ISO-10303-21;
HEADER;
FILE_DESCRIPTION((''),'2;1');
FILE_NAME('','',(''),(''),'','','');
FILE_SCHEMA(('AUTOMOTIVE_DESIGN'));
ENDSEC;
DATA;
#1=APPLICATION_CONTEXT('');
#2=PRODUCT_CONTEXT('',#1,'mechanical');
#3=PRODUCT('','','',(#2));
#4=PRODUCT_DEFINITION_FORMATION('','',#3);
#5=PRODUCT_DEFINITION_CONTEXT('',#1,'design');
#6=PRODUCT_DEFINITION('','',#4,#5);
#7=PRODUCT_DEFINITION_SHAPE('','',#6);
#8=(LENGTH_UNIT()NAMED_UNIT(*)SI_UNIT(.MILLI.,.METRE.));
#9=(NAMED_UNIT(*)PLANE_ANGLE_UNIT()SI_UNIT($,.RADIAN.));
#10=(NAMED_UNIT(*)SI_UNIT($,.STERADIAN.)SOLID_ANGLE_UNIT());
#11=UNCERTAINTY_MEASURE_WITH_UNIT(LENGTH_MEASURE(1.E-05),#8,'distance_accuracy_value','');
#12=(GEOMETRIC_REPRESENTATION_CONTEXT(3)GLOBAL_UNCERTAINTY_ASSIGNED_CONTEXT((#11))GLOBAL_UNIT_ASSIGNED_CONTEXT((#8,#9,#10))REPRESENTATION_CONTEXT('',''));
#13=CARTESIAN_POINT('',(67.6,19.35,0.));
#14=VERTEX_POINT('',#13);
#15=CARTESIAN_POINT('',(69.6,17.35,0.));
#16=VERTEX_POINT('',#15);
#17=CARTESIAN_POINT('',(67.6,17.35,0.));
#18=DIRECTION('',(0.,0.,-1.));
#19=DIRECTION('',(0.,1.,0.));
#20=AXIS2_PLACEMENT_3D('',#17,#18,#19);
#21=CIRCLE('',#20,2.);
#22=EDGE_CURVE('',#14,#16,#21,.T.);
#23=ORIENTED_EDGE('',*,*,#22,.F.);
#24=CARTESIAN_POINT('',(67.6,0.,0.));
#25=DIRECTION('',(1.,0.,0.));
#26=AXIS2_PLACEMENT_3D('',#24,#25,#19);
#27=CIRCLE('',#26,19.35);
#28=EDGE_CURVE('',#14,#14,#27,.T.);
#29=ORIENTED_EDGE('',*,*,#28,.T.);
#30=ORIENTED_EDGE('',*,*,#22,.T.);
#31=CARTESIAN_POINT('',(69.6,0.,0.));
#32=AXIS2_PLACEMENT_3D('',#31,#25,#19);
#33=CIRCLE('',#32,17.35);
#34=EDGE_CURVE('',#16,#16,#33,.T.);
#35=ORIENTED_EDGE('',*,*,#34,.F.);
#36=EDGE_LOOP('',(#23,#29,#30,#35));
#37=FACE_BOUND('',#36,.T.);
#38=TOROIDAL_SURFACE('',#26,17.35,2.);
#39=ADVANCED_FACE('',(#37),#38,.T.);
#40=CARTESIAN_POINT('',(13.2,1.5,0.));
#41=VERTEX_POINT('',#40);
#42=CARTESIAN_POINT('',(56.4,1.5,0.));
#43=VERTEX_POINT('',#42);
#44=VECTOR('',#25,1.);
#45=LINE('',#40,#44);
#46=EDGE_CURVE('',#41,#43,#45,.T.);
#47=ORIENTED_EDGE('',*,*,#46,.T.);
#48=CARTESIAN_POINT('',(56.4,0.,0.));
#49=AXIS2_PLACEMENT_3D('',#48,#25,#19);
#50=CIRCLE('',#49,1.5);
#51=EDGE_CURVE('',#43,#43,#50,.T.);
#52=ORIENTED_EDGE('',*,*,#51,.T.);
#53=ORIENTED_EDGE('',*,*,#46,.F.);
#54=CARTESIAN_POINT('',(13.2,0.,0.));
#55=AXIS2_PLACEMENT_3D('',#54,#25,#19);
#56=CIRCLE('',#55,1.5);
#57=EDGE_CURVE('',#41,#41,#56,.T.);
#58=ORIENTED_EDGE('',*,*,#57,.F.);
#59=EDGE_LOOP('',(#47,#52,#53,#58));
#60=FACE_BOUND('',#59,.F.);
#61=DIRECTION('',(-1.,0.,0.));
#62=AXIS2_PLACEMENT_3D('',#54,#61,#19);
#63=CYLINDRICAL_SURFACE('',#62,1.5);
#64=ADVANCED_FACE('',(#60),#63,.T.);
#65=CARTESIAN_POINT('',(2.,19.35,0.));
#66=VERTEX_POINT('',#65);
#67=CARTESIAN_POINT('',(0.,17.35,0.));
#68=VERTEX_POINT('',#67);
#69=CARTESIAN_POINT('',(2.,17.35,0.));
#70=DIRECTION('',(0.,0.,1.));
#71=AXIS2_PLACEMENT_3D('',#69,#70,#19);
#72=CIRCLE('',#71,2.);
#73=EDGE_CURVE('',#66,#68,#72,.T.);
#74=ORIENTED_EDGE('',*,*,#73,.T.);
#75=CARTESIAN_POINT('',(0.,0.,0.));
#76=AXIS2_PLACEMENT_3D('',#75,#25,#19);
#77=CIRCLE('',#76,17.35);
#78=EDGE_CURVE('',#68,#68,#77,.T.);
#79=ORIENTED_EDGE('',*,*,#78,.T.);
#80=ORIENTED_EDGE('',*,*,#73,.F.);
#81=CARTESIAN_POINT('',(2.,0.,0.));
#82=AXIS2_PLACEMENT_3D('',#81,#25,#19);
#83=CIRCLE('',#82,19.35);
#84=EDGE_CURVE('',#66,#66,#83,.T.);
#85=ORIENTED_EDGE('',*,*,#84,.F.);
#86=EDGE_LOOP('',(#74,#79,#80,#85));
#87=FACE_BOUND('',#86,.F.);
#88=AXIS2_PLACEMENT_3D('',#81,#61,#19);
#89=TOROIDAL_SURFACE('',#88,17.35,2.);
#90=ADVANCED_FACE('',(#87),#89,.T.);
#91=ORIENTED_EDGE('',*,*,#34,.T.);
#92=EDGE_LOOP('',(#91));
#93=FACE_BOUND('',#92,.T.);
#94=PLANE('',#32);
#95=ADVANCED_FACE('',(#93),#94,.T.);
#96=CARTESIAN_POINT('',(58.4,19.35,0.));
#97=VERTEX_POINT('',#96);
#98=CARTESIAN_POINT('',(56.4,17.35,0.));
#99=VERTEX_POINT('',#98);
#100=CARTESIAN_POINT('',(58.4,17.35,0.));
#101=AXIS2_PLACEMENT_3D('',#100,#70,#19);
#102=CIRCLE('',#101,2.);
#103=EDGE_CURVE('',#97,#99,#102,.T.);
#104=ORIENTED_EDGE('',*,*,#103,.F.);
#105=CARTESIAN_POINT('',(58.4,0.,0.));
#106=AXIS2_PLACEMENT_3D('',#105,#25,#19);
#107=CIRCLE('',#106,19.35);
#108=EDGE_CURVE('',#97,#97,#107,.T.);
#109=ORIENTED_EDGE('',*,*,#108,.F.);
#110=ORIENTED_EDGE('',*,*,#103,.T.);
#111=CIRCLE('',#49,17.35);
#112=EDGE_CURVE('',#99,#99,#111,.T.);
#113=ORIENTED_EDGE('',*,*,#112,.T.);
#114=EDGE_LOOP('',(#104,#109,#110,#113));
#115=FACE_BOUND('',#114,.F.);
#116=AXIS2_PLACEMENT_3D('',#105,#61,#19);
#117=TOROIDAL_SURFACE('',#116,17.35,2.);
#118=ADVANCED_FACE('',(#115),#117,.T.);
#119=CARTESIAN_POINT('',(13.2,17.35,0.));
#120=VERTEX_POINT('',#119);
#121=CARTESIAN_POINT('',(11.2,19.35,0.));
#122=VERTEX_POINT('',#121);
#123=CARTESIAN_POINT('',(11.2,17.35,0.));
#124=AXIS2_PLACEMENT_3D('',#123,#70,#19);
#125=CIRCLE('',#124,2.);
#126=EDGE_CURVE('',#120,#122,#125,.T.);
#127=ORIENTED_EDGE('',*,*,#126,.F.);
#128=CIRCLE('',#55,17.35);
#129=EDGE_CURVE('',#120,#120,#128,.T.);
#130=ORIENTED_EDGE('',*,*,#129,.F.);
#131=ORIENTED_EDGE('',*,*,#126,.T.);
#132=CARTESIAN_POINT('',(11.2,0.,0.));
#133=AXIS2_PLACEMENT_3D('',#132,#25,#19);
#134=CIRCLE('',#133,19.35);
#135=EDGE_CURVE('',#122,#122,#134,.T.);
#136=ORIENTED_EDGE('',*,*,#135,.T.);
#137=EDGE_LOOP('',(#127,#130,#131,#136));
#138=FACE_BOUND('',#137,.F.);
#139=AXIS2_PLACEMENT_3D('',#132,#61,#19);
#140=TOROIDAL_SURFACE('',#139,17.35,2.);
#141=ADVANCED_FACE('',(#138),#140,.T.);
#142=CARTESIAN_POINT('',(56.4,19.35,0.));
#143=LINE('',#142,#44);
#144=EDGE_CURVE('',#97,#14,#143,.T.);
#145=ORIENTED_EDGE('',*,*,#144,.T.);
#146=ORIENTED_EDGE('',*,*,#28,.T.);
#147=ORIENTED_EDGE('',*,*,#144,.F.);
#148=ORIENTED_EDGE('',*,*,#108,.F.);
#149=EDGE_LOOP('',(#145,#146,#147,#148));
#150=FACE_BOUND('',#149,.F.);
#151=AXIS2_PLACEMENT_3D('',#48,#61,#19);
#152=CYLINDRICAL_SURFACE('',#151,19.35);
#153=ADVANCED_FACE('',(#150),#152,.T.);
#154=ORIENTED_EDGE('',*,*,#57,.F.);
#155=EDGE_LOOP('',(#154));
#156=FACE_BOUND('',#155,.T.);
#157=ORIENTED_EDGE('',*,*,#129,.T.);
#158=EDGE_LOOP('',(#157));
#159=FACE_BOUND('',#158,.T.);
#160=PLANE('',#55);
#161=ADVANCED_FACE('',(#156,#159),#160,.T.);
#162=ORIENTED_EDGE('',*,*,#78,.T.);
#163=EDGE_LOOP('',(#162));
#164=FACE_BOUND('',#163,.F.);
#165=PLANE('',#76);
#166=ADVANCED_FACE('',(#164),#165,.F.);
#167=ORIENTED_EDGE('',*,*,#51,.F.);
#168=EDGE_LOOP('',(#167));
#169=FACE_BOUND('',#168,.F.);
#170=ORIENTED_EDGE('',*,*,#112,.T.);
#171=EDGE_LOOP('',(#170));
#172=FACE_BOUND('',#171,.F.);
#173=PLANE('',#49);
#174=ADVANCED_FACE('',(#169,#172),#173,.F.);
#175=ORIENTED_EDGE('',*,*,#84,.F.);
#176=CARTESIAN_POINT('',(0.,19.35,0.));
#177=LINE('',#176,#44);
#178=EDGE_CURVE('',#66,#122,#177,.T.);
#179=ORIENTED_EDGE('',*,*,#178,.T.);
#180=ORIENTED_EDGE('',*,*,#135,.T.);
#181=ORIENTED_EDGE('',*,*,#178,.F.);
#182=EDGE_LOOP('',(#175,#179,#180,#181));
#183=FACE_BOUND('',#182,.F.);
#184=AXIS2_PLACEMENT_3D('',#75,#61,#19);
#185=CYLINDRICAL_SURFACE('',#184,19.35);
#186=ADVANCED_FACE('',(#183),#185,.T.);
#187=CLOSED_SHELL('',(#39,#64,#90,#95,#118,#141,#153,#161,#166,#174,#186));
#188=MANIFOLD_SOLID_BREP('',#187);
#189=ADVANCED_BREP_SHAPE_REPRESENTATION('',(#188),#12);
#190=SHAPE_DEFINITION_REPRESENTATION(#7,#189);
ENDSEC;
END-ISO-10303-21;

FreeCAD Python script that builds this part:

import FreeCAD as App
import Part
import Sketcher
from FreeCAD import Vector
Q = App.Units.Quantity


def edges_at(feature, points):
    """Names of the edges that pass closest to the given points."""
    edges = feature.Shape.Edges
    near = lambda p: min(range(len(edges)), key=lambda i: edges[i].distToShape(Part.Vertex(*p))[0])
    return sorted({f"Edge{near(p) + 1}" for p in points})

doc = App.newDocument("Part")
body = doc.addObject("PartDesign::Body", "Body")

sketch1 = body.newObject("Sketcher::SketchObject", "Sketch")
sketch1.AttachmentSupport = (doc.getObject("YZ_Plane"), [""])
sketch1.MapMode = "FlatFace"
sketch1.addGeometry(Part.Circle(Vector(0, 0, 0), Vector(0, 0, 1), 19), False)
sketch1.addConstraint(Sketcher.Constraint("Coincident", 0, 3, -1, 1))
sketch1.addConstraint(Sketcher.Constraint("Diameter", 0, Q("38.7 mm")))
pad1 = body.newObject("PartDesign::Pad", "Pad")
pad1.Profile = sketch1
pad1.Length = 13.2

sketch2 = body.newObject("Sketcher::SketchObject", "Sketch001")
sketch2.AttachmentSupport = (doc.getObject("YZ_Plane"), [""])
sketch2.MapMode = "FlatFace"
sketch2.AttachmentOffset = App.Placement(Vector(0, 0, 13.2), App.Rotation())
sketch2.addGeometry(Part.Circle(Vector(0, 0, 0), Vector(0, 0, 1), 1.5), False)
sketch2.addConstraint(Sketcher.Constraint("Coincident", 0, 3, -1, 1))
sketch2.addConstraint(Sketcher.Constraint("Diameter", 0, Q("3 mm")))
pad2 = body.newObject("PartDesign::Pad", "Pad001")
pad2.Profile = sketch2
pad2.Length = 43.2

sketch3 = body.newObject("Sketcher::SketchObject", "Sketch002")
sketch3.AttachmentSupport = (doc.getObject("YZ_Plane"), [""])
sketch3.MapMode = "FlatFace"
sketch3.AttachmentOffset = App.Placement(Vector(0, 0, 56.4), App.Rotation())
sketch3.addGeometry(Part.Circle(Vector(0, 0, 0), Vector(0, 0, 1), 19), False)
sketch3.addConstraint(Sketcher.Constraint("Coincident", 0, 3, -1, 1))
sketch3.addConstraint(Sketcher.Constraint("Diameter", 0, Q("38.7 mm")))
pad3 = body.newObject("PartDesign::Pad", "Pad002")
pad3.Profile = sketch3
pad3.Length = 13.2
doc.recompute()

fillet = body.newObject("PartDesign::Fillet", "Fillet")
fillet.Base = (pad3, edges_at(pad3, [
    (0, -19.35, 0),
    (13.2, -19.35, 0),
    (56.4, -19.35, 0),
    (69.6, -19.35, 0),
]))
fillet.Radius = 2

doc.recompute()
